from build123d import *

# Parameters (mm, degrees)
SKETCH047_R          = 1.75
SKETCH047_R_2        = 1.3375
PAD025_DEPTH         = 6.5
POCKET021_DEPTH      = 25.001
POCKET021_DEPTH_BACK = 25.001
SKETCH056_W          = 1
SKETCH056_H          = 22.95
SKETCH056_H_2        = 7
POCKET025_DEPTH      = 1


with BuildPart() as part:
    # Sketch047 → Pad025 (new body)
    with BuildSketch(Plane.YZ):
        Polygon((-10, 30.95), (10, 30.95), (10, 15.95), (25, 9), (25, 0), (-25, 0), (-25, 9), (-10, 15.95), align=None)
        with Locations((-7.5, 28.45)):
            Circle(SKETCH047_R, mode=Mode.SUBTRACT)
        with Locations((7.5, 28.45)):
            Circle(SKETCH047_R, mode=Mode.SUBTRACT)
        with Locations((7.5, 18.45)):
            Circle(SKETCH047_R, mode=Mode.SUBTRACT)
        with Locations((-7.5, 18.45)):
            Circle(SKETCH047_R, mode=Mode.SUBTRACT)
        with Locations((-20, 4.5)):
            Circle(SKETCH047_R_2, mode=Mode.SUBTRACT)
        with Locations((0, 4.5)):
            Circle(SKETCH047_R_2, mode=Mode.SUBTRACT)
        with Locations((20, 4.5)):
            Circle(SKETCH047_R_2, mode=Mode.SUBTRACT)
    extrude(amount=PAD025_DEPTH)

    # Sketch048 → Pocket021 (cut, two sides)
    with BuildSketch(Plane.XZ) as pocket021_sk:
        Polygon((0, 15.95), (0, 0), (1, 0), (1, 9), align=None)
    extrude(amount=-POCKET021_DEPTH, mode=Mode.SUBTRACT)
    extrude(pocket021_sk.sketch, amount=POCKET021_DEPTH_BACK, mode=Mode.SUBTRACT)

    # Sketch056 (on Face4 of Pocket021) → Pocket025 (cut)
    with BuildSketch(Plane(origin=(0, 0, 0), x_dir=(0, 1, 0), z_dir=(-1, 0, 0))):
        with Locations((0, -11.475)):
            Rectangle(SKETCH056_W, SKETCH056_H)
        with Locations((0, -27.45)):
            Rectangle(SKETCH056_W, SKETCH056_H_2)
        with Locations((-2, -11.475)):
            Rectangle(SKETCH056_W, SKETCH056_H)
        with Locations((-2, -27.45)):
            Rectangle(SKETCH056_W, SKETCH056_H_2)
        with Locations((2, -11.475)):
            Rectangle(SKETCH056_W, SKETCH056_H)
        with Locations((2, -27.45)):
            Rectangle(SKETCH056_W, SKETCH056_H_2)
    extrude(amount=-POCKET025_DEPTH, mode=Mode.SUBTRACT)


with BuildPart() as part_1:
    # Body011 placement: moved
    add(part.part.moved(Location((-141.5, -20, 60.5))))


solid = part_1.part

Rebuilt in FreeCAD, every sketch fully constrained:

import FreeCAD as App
import Part
import Sketcher


def add_polygon(sketch, points):
    """Adds a closed chain of lines whose ends are joined by coincident constraints."""
    first, n = sketch.GeometryCount, len(points)
    for a, b in zip(points, points[1:] + points[:1]):
        sketch.addGeometry(Part.LineSegment(App.Vector(*a, 0), App.Vector(*b, 0)), False)
    for i in range(n):
        sketch.addConstraint(Sketcher.Constraint("Coincident", first + i, 2, first + (i + 1) % n, 1))

doc = App.newDocument("Part")
body = doc.addObject("PartDesign::Body", "Body")

# Sketch on YZ plane
sketch1 = body.newObject("Sketcher::SketchObject", "Sketch")
sketch1.AttachmentSupport = (doc.getObject("YZ_Plane"), [""])
sketch1.MapMode = "FlatFace"
add_polygon(sketch1, [(10, 30.9), (-10, 30.9), (-10, 15.9), (-25, 9), (-25, 0), (25, 0), (25, 9), (10, 15.9)])  # lines 0-7
sketch1.addGeometry(Part.Circle(App.Vector(20, 4.5, 0), App.Vector(0, 0, 1), 1.3), False)  # 8
sketch1.addGeometry(Part.Circle(App.Vector(0, 4.5, 0), App.Vector(0, 0, 1), 1.3), False)  # 9
sketch1.addGeometry(Part.Circle(App.Vector(-20, 4.5, 0), App.Vector(0, 0, 1), 1.3), False)  # 10
sketch1.addGeometry(Part.Circle(App.Vector(7.5, 18.4, 0), App.Vector(0, 0, 1), 1.8), False)  # 11
sketch1.addGeometry(Part.Circle(App.Vector(7.5, 28.4, 0), App.Vector(0, 0, 1), 1.8), False)  # 12
sketch1.addGeometry(Part.Circle(App.Vector(-7.5, 18.4, 0), App.Vector(0, 0, 1), 1.8), False)  # 13
sketch1.addGeometry(Part.Circle(App.Vector(-7.5, 28.4, 0), App.Vector(0, 0, 1), 1.8), False)  # 14
sketch1.addConstraint([
    Sketcher.Constraint("Horizontal", 0),
    Sketcher.Constraint("Vertical", 1),
    Sketcher.Constraint("Vertical", 3),
    Sketcher.Constraint("Horizontal", 4),
    Sketcher.Constraint("Vertical", 5),
    Sketcher.Constraint("Vertical", 7),
    Sketcher.Constraint("Equal", 8, 9),
    Sketcher.Constraint("Equal", 9, 10),
    Sketcher.Constraint("Equal", 11, 12),
    Sketcher.Constraint("Equal", 12, 13),
    Sketcher.Constraint("Equal", 13, 14),
    Sketcher.Constraint("Symmetric", 3, 2, 4, 2, -1, 1),
    Sketcher.Constraint("Symmetric", 8, 3, 10, 3, -2),
    Sketcher.Constraint("Symmetric", 11, 3, 13, 3, -2),
    Sketcher.Constraint("Symmetric", 12, 3, 14, 3, -2),
    Sketcher.Constraint("Symmetric", 1, 2, 6, 2, -2),
    Sketcher.Constraint("PointOnObject", 9, 3, -2),
    Sketcher.Constraint("Horizontal", 8, 3, 9, 3),
    Sketcher.Constraint("Horizontal", 2, 2, 5, 2),
    Sketcher.Constraint("Vertical", 11, 3, 12, 3),
    Sketcher.Constraint("Diameter", 11, 3.5),
    Sketcher.Constraint("DistanceX", 0, 2, 0, 1, 20.0),
    Sketcher.Constraint("DistanceX", 4, 1, 4, 2, 50.0),
    Sketcher.Constraint("DistanceY", 1, 2, 1, 1, 15.0),
    Sketcher.Constraint("DistanceY", 3, 2, 3, 1, 9.0),
    Sketcher.Constraint("Diameter", 8, 2.675),
    Sketcher.Constraint("DistanceX", -1, 1, 8, 3, 20.0),
    Sketcher.Constraint("DistanceY", 11, 3, 12, 3, 10.0),
    Sketcher.Constraint("DistanceX", 13, 3, 11, 3, 15.0),
    Sketcher.Constraint("DistanceY", -1, 1, 8, 3, 4.5),
    Sketcher.Constraint("DistanceY", 14, 3, 0, 2, 2.5),
    Sketcher.Constraint("DistanceY", -1, 1, 11, 3, 18.45),
])
pad1 = body.newObject("PartDesign::Pad", "Pad")
pad1.Profile = sketch1
pad1.Length = 6.5

# Sketch on XZ plane
sketch2 = body.newObject("Sketcher::SketchObject", "Sketch001")
sketch2.AttachmentSupport = (doc.getObject("XZ_Plane"), [""])
sketch2.MapMode = "FlatFace"
add_polygon(sketch2, [(0, 15.9), (0, 0), (1, 0), (1, 9)])  # lines 0-3
sketch2.addConstraint([
    Sketcher.Constraint("Vertical", 0),
    Sketcher.Constraint("Horizontal", 1),
    Sketcher.Constraint("Vertical", 2),
    Sketcher.Constraint("Coincident", 0, 2, -1, 1),
    Sketcher.Constraint("DistanceX", 1, 1, 1, 2, 1.0),
    Sketcher.Constraint("DistanceY", 2, 1, 2, 2, 9.0),
    Sketcher.Constraint("DistanceY", 0, 2, 0, 1, 15.95),
])
pocket1 = body.newObject("PartDesign::Pocket", "Pocket")
pocket1.Profile = sketch2
pocket1.Type = "ThroughAll"
pocket1.Midplane = True

# Sketch on YZ plane
sketch3 = body.newObject("Sketcher::SketchObject", "Sketch002")
sketch3.AttachmentSupport = (doc.getObject("YZ_Plane"), [""])
sketch3.MapMode = "FlatFace"
add_polygon(sketch3, [(-0.5, 0), (-0.5, 22.9), (0.5, 22.9), (0.5, 0)])  # lines 0-3
add_polygon(sketch3, [(-0.5, 23.9), (-0.5, 30.9), (0.5, 30.9), (0.5, 23.9)])  # lines 4-7
add_polygon(sketch3, [(-2.5, 0), (-2.5, 22.9), (-1.5, 22.9), (-1.5, 0)])  # lines 8-11
add_polygon(sketch3, [(-2.5, 23.9), (-2.5, 30.9), (-1.5, 30.9), (-1.5, 23.9)])  # lines 12-15
add_polygon(sketch3, [(1.5, 0), (1.5, 22.9), (2.5, 22.9), (2.5, 0)])  # lines 16-19
add_polygon(sketch3, [(1.5, 23.9), (1.5, 30.9), (2.5, 30.9), (2.5, 23.9)])  # lines 20-23
sketch3.addConstraint([
    Sketcher.Constraint("Vertical", 0),
    Sketcher.Constraint("Horizontal", 1),
    Sketcher.Constraint("Vertical", 2),
    Sketcher.Constraint("Horizontal", 3),
    Sketcher.Constraint("Vertical", 4),
    Sketcher.Constraint("Horizontal", 5),
    Sketcher.Constraint("Vertical", 6),
    Sketcher.Constraint("Horizontal", 7),
    Sketcher.Constraint("Vertical", 8),
    Sketcher.Constraint("Horizontal", 9),
    Sketcher.Constraint("Vertical", 10),
    Sketcher.Constraint("Horizontal", 11),
    Sketcher.Constraint("Vertical", 12),
    Sketcher.Constraint("Horizontal", 13),
    Sketcher.Constraint("Vertical", 14),
    Sketcher.Constraint("Horizontal", 15),
    Sketcher.Constraint("Vertical", 16),
    Sketcher.Constraint("Horizontal", 17),
    Sketcher.Constraint("Vertical", 18),
    Sketcher.Constraint("Horizontal", 19),
    Sketcher.Constraint("Vertical", 20),
    Sketcher.Constraint("Horizontal", 21),
    Sketcher.Constraint("Vertical", 22),
    Sketcher.Constraint("Horizontal", 23),
    Sketcher.Constraint("Symmetric", 2, 2, 3, 2, -1, 1),
    Sketcher.Constraint("Symmetric", 11, 2, 18, 2, -1, 1),
    Sketcher.Constraint("Symmetric", 9, 2, 16, 2, -2),
    Sketcher.Constraint("Symmetric", 13, 2, 20, 2, -2),
    Sketcher.Constraint("Symmetric", 15, 2, 22, 2, -2),
    Sketcher.Constraint("PointOnObject", 10, 2, -1),
    Sketcher.Constraint("Horizontal", 1, 2, 8, 2),
    Sketcher.Constraint("Horizontal", 5, 2, 12, 2),
    Sketcher.Constraint("Horizontal", 7, 2, 14, 2),
    Sketcher.Constraint("Vertical", 3, 2, 4, 2),
    Sketcher.Constraint("Vertical", 2, 2, 5, 2),
    Sketcher.Constraint("Vertical", 11, 2, 12, 2),
    Sketcher.Constraint("Vertical", 10, 2, 13, 2),
    Sketcher.Constraint("Equal", 7, 9),
    Sketcher.Constraint("DistanceX", 1, 1, 1, 2, 1.0),
    Sketcher.Constraint("DistanceY", 4, 1, 4, 2, 7.0),
    Sketcher.Constraint("DistanceY", 0, 2, 4, 2, 8.0),
    Sketcher.Constraint("DistanceX", 8, 2, 0, 2, 2.0),
    Sketcher.Constraint("DistanceY", 0, 1, 0, 2, 22.95),
])
pocket2 = body.newObject("PartDesign::Pocket", "Pocket001")
pocket2.Profile = sketch3
pocket2.Length = 1
pocket2.Reversed = True
body2 = doc.addObject("PartDesign::Body", "Body001")
doc.recompute()

body.Placement = App.Placement(App.Vector(-141.5, -20, 60.5), App.Rotation(App.Vector(0, 0, 1), 0))
boolean = body2.newObject("PartDesign::Boolean", "Boolean")
boolean.Type = "Fuse"
boolean.addObjects([body])

doc.recompute()
